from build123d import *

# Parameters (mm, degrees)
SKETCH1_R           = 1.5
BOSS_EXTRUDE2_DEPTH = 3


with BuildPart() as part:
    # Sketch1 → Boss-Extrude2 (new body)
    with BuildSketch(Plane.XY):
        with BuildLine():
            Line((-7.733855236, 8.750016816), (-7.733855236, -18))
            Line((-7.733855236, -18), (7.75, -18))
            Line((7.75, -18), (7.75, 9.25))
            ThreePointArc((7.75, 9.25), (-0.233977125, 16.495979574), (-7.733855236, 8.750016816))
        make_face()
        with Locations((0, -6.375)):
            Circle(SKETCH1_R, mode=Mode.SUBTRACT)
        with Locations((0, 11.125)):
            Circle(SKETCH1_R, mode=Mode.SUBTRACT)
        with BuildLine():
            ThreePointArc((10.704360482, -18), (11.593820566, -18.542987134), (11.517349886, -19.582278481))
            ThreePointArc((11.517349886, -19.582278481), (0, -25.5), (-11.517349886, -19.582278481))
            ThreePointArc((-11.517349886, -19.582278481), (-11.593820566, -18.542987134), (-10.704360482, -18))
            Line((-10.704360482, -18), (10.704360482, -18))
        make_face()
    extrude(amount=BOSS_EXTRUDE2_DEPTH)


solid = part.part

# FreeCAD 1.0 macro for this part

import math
import FreeCAD as App
import Part
import Sketcher

V = App.Vector
Q = App.Units.Quantity

doc = App.newDocument("Part")
params = doc.addObject("Spreadsheet::Sheet", "Params")
for row, (alias, value) in enumerate([
    ("sketch1_diameter", "3 mm"),
    ("sketch1_radius", "1 mm"),
    ("sketch1_radius2", "7.75 mm"),
    ("sketch1_height", "27.25 mm"),
    ("pad1_length", "3 mm"),
], start=1):
    params.set(f"A{row}", alias)
    params.set(f"B{row}", "=" + value)
    params.setAlias(f"B{row}", alias)

body = doc.addObject("PartDesign::Body", "Body")

sketch1 = body.newObject("Sketcher::SketchObject", "Sketch")
sketch1.AttachmentSupport = (doc.getObject("XY_Plane"), [""])
sketch1.MapMode = "FlatFace"
sketch1.addGeometry([
    Part.LineSegment(V(-7.733855, 8.750017, 0), V(-7.733855, -18, 0)),
    Part.LineSegment(V(-7.733855, -18, 0), V(-10.70436, -18, 0)),
    Part.ArcOfCircle(Part.Circle(V(-10.70436, -19, 0), V(0, 0, 1), 1), math.radians(90), math.radians(215.610959)),
    Part.ArcOfCircle(Part.Circle(V(0, -11.333333, 0), V(0, 0, 1), 14.166667), math.radians(-144.389041), math.radians(-35.610959)),
    Part.ArcOfCircle(Part.Circle(V(10.70436, -19, 0), V(0, 0, 1), 1), math.radians(-35.610959), math.radians(90)),
    Part.LineSegment(V(10.70436, -18, 0), V(7.75, -18, 0)),
    Part.LineSegment(V(7.75, -18, 0), V(7.75, 9.25, 0)),
    Part.ArcOfCircle(Part.Circle(V(0.016145, 8.750017, 0), V(0, 0, 1), 7.75), math.radians(3.698946), math.radians(180)),
    Part.Circle(V(0, -6.375, 0), V(0, 0, 1), 1.5),
    Part.Circle(V(0, 11.125, 0), V(0, 0, 1), 1.5),
], False)
sketch1.addConstraint([
    Sketcher.Constraint("Coincident", 0, 2, 1, 1),
    Sketcher.Constraint("Tangent", 1, 2, 2, 1),
    Sketcher.Constraint("Tangent", 2, 2, 3, 1),
    Sketcher.Constraint("Tangent", 3, 2, 4, 1),
    Sketcher.Constraint("Tangent", 4, 2, 5, 1),
    Sketcher.Constraint("Coincident", 5, 2, 6, 1),
    Sketcher.Constraint("Coincident", 6, 2, 7, 1),
    Sketcher.Constraint("Tangent", 7, 2, 0, 1),
    Sketcher.Constraint("Vertical", 0),
    Sketcher.Constraint("Horizontal", 1),
    Sketcher.Constraint("Horizontal", 5),
    Sketcher.Constraint("Vertical", 6),
    Sketcher.Constraint("Equal", 2, 4),
    Sketcher.Constraint("Equal", 8, 9),
    Sketcher.Constraint("Symmetric", 2, 3, 4, 3, -2),
    Sketcher.Constraint("PointOnObject", 8, 3, -2),
    Sketcher.Constraint("PointOnObject", 9, 3, -2),
    Sketcher.Constraint("Diameter", 8, Q("3 mm")),
    Sketcher.Constraint("Radius", 2, Q("1 mm")),
    Sketcher.Constraint("Radius", 7, Q("7.75 mm")),
    Sketcher.Constraint("DistanceY", 2, 3, -1, 1, Q("19 mm")),
    Sketcher.Constraint("DistanceY", 6, 1, 6, 2, Q("27.25 mm")),
    Sketcher.Constraint("DistanceY", 8, 3, 9, 3, Q("17.5 mm")),
    Sketcher.Constraint("DistanceX", -1, 1, 5, 2, Q("7.75 mm")),
    Sketcher.Constraint("DistanceY", 8, 3, -1, 1, Q("6.375 mm")),
    Sketcher.Constraint("Radius", 3, Q("14.166667 mm")),
    Sketcher.Constraint("DistanceX", 5, 2, 5, 1, Q("2.95436 mm")),
    Sketcher.Constraint("DistanceX", 1, 2, 1, 1, Q("2.970505 mm")),
])
sketch1.setExpression("Constraints[17]", "Params.sketch1_diameter")
sketch1.setExpression("Constraints[18]", "Params.sketch1_radius")
sketch1.setExpression("Constraints[19]", "Params.sketch1_radius2")
sketch1.setExpression("Constraints[21]", "Params.sketch1_height")
pad1 = body.newObject("PartDesign::Pad", "Pad")
pad1.Profile = sketch1
pad1.setExpression("Length", "Params.pad1_length")

doc.recompute()
